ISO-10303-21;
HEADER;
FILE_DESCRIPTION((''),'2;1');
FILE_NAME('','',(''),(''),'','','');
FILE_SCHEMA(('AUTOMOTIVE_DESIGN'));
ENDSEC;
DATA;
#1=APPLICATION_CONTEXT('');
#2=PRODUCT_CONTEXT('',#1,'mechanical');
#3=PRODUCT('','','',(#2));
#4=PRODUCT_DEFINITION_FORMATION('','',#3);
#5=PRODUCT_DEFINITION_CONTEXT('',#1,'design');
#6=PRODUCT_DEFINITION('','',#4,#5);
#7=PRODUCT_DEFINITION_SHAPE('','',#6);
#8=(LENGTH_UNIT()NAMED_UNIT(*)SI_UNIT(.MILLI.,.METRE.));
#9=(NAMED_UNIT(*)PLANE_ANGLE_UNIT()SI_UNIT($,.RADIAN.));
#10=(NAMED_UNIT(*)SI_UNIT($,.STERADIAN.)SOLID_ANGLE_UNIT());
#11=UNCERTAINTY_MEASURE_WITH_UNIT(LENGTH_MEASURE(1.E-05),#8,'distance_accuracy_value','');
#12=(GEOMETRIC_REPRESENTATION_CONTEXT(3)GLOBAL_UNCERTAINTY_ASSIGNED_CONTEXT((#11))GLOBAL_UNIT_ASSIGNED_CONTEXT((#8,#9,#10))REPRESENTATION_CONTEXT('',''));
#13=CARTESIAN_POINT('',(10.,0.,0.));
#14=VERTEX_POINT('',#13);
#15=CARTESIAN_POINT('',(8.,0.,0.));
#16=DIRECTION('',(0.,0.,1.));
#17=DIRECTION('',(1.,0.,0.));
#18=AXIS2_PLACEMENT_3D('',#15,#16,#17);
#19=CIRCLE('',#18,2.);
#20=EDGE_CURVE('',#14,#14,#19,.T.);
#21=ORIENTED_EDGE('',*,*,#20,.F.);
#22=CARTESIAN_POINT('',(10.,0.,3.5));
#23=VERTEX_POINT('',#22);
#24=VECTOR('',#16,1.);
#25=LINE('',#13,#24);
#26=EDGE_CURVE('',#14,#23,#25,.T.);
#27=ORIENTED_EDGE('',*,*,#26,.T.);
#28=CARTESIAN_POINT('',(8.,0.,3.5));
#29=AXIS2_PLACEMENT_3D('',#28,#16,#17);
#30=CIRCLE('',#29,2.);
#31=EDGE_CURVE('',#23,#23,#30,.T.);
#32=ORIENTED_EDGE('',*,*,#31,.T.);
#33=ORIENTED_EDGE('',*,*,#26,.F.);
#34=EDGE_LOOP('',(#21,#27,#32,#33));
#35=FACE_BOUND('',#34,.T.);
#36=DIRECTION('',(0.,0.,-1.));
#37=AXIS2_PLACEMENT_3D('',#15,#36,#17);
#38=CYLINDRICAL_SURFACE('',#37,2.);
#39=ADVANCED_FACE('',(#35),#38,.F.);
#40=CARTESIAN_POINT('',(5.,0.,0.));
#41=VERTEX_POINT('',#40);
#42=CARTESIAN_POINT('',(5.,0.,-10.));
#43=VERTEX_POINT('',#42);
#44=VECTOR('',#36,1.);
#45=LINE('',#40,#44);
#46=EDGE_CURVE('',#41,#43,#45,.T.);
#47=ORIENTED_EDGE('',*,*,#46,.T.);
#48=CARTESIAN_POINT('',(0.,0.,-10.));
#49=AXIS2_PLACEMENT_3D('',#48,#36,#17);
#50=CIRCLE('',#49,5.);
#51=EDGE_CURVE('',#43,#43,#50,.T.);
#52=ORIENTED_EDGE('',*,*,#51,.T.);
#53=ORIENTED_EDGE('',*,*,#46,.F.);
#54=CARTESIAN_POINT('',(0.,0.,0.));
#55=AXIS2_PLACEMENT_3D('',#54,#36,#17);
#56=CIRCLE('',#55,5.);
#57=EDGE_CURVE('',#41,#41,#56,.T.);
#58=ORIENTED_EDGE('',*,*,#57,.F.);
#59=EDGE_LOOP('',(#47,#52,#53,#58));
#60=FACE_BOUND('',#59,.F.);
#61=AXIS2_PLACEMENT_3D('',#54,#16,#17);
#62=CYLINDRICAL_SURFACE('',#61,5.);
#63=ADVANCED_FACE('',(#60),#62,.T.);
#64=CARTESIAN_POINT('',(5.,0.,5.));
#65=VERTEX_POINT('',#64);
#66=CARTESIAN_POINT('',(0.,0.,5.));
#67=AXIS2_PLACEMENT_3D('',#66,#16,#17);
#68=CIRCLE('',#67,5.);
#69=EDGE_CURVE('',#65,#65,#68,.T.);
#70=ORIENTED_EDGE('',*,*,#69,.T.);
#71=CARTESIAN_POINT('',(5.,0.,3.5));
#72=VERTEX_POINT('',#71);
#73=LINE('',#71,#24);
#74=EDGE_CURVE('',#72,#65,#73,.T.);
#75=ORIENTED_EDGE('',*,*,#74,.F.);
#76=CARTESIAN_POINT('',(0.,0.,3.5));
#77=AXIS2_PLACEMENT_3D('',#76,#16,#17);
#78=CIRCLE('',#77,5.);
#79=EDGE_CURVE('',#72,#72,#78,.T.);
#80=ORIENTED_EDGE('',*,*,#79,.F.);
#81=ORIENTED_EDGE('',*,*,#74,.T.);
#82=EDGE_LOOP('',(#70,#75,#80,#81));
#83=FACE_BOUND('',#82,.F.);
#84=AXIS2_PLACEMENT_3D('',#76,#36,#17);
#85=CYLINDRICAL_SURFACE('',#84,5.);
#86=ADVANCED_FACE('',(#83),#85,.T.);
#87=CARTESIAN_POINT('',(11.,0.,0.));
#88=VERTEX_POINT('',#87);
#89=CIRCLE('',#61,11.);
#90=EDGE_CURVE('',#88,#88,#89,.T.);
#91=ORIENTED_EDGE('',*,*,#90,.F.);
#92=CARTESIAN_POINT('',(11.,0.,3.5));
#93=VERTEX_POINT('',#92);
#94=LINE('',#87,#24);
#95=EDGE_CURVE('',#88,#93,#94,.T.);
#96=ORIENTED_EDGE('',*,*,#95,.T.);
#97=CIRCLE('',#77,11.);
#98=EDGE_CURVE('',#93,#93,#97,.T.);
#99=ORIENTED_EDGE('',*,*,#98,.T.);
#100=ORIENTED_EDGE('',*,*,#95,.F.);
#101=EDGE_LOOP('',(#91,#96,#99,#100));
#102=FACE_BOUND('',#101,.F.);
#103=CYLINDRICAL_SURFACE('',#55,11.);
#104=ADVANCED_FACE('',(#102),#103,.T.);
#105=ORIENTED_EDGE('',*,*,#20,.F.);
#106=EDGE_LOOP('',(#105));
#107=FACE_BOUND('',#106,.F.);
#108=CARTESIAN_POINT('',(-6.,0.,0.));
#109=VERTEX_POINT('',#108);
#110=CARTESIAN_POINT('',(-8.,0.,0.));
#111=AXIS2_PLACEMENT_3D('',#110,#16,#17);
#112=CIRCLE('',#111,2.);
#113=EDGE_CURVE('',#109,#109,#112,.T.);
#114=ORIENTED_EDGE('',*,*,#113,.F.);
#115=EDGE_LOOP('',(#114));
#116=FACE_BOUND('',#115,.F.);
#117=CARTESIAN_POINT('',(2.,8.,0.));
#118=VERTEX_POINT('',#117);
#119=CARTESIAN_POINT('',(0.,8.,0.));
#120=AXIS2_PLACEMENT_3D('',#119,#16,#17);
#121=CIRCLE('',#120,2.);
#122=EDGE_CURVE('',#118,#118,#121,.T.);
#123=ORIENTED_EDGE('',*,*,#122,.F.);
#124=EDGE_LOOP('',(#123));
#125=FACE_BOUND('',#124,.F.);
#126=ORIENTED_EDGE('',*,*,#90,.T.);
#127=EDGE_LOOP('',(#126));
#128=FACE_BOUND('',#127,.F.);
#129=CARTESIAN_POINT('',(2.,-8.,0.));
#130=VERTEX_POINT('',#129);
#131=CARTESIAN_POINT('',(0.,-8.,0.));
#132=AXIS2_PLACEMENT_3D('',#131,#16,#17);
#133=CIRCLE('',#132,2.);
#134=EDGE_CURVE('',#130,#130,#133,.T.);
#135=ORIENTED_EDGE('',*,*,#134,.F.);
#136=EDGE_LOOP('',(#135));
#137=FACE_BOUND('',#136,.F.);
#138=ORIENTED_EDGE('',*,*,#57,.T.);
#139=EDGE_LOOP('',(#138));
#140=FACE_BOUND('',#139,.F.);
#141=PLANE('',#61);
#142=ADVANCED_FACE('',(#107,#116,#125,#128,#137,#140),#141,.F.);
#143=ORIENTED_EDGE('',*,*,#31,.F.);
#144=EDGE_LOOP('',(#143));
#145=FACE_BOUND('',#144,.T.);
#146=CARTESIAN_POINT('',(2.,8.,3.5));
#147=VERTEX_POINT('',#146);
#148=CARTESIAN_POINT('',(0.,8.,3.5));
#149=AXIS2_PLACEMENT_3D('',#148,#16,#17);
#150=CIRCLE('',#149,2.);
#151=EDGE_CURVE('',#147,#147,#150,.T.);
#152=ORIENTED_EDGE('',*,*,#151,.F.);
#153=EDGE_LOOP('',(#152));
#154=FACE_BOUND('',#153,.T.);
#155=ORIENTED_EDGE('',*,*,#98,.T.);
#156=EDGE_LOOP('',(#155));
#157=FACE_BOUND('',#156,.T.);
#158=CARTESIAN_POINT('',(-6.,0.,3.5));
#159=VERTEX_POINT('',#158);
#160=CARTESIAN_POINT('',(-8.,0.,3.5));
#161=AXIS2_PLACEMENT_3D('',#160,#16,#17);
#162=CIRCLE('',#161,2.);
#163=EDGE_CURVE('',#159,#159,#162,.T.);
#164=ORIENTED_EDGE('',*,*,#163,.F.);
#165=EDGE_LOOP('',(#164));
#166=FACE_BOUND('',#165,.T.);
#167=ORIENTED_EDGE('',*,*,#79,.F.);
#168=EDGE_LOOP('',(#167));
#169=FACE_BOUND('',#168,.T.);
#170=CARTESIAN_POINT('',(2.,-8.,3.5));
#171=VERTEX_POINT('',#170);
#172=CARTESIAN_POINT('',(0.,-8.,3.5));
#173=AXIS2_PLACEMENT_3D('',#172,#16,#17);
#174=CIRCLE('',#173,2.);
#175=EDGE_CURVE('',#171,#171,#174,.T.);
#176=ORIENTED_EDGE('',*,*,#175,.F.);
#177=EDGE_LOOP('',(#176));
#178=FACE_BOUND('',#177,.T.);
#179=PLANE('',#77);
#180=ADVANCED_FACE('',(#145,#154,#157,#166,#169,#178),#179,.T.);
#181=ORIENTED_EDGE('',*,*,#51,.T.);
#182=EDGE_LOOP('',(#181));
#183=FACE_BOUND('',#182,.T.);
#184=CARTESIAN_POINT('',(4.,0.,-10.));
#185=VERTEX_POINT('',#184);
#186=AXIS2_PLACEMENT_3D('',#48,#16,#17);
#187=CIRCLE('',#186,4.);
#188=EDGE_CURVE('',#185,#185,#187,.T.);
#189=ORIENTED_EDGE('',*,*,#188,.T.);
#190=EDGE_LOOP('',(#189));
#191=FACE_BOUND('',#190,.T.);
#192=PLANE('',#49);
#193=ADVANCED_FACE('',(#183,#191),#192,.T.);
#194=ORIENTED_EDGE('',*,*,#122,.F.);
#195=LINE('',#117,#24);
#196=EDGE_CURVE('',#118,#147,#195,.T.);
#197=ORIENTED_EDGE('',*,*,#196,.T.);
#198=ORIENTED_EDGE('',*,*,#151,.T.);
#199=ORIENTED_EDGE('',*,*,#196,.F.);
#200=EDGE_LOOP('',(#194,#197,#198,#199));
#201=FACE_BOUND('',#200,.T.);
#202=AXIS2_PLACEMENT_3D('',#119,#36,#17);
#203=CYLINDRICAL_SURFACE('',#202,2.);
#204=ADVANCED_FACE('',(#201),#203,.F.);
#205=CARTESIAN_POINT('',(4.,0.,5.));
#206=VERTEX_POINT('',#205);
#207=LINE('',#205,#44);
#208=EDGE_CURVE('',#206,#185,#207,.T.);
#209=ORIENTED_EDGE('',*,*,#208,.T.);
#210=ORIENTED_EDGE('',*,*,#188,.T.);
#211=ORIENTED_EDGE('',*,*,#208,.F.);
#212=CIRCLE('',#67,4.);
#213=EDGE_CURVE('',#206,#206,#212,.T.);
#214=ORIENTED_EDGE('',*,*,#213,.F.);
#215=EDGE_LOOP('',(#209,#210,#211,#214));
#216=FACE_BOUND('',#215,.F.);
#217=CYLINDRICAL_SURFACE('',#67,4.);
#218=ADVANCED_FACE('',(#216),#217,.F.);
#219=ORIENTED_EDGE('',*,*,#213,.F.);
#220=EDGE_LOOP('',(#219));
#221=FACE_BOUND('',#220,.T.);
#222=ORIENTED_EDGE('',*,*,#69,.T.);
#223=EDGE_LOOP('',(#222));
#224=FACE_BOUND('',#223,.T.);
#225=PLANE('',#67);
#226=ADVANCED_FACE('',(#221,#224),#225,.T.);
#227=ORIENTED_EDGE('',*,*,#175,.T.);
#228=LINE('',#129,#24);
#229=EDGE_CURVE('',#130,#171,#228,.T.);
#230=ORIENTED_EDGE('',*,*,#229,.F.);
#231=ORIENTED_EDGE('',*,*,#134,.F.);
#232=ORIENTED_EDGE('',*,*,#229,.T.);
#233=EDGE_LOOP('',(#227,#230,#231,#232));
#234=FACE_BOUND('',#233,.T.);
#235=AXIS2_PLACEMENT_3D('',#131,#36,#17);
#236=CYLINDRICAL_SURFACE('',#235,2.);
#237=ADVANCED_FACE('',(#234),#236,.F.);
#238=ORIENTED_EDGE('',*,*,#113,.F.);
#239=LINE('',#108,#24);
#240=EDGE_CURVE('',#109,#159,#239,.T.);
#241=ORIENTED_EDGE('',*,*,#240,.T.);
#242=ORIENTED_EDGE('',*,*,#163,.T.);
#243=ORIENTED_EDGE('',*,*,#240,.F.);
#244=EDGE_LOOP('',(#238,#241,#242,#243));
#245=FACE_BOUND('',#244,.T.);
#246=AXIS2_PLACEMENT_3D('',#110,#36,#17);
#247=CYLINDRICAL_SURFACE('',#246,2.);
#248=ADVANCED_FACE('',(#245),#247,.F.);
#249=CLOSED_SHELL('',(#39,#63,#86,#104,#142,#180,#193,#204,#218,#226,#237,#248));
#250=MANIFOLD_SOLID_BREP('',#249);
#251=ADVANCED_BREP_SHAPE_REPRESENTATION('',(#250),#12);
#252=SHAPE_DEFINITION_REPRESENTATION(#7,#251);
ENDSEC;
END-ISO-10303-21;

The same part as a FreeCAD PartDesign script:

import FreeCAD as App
import Part
import Sketcher

V = App.Vector
Q = App.Units.Quantity

doc = App.newDocument("Part")
body = doc.addObject("PartDesign::Body", "Body")

# Sketch on XY plane
sketch1 = body.newObject("Sketcher::SketchObject", "Sketch")
sketch1.AttachmentSupport = (doc.getObject("XY_Plane"), [""])
sketch1.MapMode = "FlatFace"
sketch1.addGeometry(Part.Circle(V(0, 0, 0), V(0, 0, 1), 11), False)
sketch1.addGeometry(Part.Circle(V(0, -8, 0), V(0, 0, 1), 2), False)
sketch1.addGeometry(Part.Circle(V(-8, 0, 0), V(0, 0, 1), 2), False)
sketch1.addGeometry(Part.Circle(V(8, 0, 0), V(0, 0, 1), 2), False)
sketch1.addGeometry(Part.Circle(V(0, 8, 0), V(0, 0, 1), 2), False)
sketch1.addConstraint(Sketcher.Constraint("Coincident", 0, 3, -1, 1))
sketch1.addConstraint(Sketcher.Constraint("Equal", 1, 2))
sketch1.addConstraint(Sketcher.Constraint("Equal", 2, 3))
sketch1.addConstraint(Sketcher.Constraint("Equal", 3, 4))
sketch1.addConstraint(Sketcher.Constraint("Symmetric", 2, 3, 3, 3, -1, 1))
sketch1.addConstraint(Sketcher.Constraint("Symmetric", 1, 3, 4, 3, -1, 1))
sketch1.addConstraint(Sketcher.Constraint("PointOnObject", 1, 3, -2))
sketch1.addConstraint(Sketcher.Constraint("PointOnObject", 2, 3, -1))
sketch1.addConstraint(Sketcher.Constraint("Diameter", 0, Q("22 mm")))
sketch1.addConstraint(Sketcher.Constraint("Diameter", 1, Q("4 mm")))
sketch1.addConstraint(Sketcher.Constraint("DistanceY", 1, 3, -1, 1, Q("8 mm")))
sketch1.addConstraint(Sketcher.Constraint("DistanceX", 2, 3, -1, 1, Q("8 mm")))
pad1 = body.newObject("PartDesign::Pad", "Pad")
pad1.Profile = sketch1
pad1.Length = 3.5

# Sketch on XY plane
sketch2 = body.newObject("Sketcher::SketchObject", "Sketch001")
sketch2.AttachmentSupport = (doc.getObject("XY_Plane"), [""])
sketch2.MapMode = "FlatFace"
sketch2.AttachmentOffset = App.Placement(V(0, 0, 3.5), App.Rotation())
sketch2.addGeometry(Part.Circle(V(0, 0, 0), V(0, 0, 1), 5), False)
sketch2.addConstraint(Sketcher.Constraint("Coincident", 0, 3, -1, 1))
sketch2.addConstraint(Sketcher.Constraint("Diameter", 0, Q("10 mm")))
pad2 = body.newObject("PartDesign::Pad", "Pad001")
pad2.Profile = sketch2
pad2.Length = 1.5

# Sketch on XY plane
sketch3 = body.newObject("Sketcher::SketchObject", "Sketch002")
sketch3.AttachmentSupport = (doc.getObject("XY_Plane"), [""])
sketch3.MapMode = "FlatFace"
sketch3.addGeometry(Part.Circle(V(0, 0, 0), V(0, 0, 1), 5), False)
sketch3.addConstraint(Sketcher.Constraint("Coincident", 0, 3, -1, 1))
sketch3.addConstraint(Sketcher.Constraint("Diameter", 0, Q("10 mm")))
pad3 = body.newObject("PartDesign::Pad", "Pad002")
pad3.Profile = sketch3
pad3.Length = 10
pad3.Reversed = True

# Sketch on XY plane
sketch4 = body.newObject("Sketcher::SketchObject", "Sketch003")
sketch4.AttachmentSupport = (doc.getObject("XY_Plane"), [""])
sketch4.MapMode = "FlatFace"
sketch4.AttachmentOffset = App.Placement(V(0, 0, 5), App.Rotation())
sketch4.addGeometry(Part.Circle(V(0, 0, 0), V(0, 0, 1), 4), False)
sketch4.addConstraint(Sketcher.Constraint("Coincident", 0, 3, -1, 1))
sketch4.addConstraint(Sketcher.Constraint("Diameter", 0, Q("8 mm")))
pocket1 = body.newObject("PartDesign::Pocket", "Pocket")
pocket1.Profile = sketch4
pocket1.Type = "ThroughAll"

doc.recompute()
